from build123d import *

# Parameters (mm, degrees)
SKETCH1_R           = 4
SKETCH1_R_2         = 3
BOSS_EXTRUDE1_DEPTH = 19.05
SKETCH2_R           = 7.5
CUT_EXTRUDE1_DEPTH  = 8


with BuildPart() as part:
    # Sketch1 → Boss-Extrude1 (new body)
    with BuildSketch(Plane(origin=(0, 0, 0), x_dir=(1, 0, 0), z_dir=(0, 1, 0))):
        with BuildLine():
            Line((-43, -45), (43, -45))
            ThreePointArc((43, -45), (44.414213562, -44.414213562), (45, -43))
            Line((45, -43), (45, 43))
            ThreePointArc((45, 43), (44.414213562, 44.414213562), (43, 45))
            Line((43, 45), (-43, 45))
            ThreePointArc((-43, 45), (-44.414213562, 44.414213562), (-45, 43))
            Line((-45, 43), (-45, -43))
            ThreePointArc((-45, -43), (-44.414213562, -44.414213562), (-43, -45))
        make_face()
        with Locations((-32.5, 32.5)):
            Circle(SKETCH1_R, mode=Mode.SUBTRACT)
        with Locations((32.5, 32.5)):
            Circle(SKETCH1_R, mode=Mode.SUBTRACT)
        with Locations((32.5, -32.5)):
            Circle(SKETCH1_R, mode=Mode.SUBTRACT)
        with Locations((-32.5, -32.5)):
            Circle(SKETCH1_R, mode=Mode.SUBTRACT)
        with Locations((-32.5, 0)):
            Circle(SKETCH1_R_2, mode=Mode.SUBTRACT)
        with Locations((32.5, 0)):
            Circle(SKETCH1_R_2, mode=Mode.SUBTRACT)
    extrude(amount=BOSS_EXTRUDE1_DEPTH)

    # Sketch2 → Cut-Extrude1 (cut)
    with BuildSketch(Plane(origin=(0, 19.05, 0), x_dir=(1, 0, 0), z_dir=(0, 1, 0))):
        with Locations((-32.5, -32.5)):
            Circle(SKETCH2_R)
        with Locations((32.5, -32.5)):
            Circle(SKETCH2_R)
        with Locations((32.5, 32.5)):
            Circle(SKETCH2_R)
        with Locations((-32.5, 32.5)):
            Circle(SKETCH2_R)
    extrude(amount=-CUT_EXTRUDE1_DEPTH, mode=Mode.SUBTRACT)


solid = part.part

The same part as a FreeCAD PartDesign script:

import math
import FreeCAD as App
import Part
import Sketcher
from FreeCAD import Vector
Q = App.Units.Quantity

doc = App.newDocument("Part")
body = doc.addObject("PartDesign::Body", "Body")

sketch1 = body.newObject("Sketcher::SketchObject", "Sketch")
sketch1.AttachmentSupport = (doc.getObject("XZ_Plane"), [""])
sketch1.MapMode = "FlatFace"
sketch1.addGeometry([
    Part.LineSegment(Vector(-43, 45, 0), Vector(43, 45, 0)),
    Part.ArcOfCircle(Part.Circle(Vector(43, 43, 0), Vector(0, 0, 1), 2), math.radians(0), math.radians(90)),
    Part.LineSegment(Vector(45, 43, 0), Vector(45, -43, 0)),
    Part.ArcOfCircle(Part.Circle(Vector(43, -43, 0), Vector(0, 0, 1), 2), math.radians(-90), math.radians(0)),
    Part.LineSegment(Vector(43, -45, 0), Vector(-43, -45, 0)),
    Part.ArcOfCircle(Part.Circle(Vector(-43, -43, 0), Vector(0, 0, 1), 2), math.radians(-180), math.radians(-90)),
    Part.LineSegment(Vector(-45, -43, 0), Vector(-45, 43, 0)),
    Part.ArcOfCircle(Part.Circle(Vector(-43, 43, 0), Vector(0, 0, 1), 2), math.radians(90), math.radians(180)),
    Part.Circle(Vector(-32.5, 32.5, 0), Vector(0, 0, 1), 4),
    Part.Circle(Vector(32.5, 32.5, 0), Vector(0, 0, 1), 4),
    Part.Circle(Vector(-32.5, 0, 0), Vector(0, 0, 1), 3),
    Part.Circle(Vector(-32.5, -32.5, 0), Vector(0, 0, 1), 4),
    Part.Circle(Vector(32.5, 0, 0), Vector(0, 0, 1), 3),
    Part.Circle(Vector(32.5, -32.5, 0), Vector(0, 0, 1), 4),
], False)
sketch1.addConstraint([
    Sketcher.Constraint("Tangent", 0, 2, 1, 2),
    Sketcher.Constraint("Tangent", 1, 1, 2, 1),
    Sketcher.Constraint("Tangent", 2, 2, 3, 2),
    Sketcher.Constraint("Tangent", 3, 1, 4, 1),
    Sketcher.Constraint("Tangent", 4, 2, 5, 2),
    Sketcher.Constraint("Tangent", 5, 1, 6, 1),
    Sketcher.Constraint("Tangent", 6, 2, 7, 2),
    Sketcher.Constraint("Tangent", 7, 1, 0, 1),
    Sketcher.Constraint("Horizontal", 0),
    Sketcher.Constraint("Vertical", 2),
    Sketcher.Constraint("Horizontal", 4),
    Sketcher.Constraint("Vertical", 6),
    Sketcher.Constraint("Equal", 1, 3),
    Sketcher.Constraint("Equal", 3, 5),
    Sketcher.Constraint("Equal", 5, 7),
    Sketcher.Constraint("Equal", 8, 9),
    Sketcher.Constraint("Equal", 9, 11),
    Sketcher.Constraint("Equal", 10, 12),
    Sketcher.Constraint("Equal", 11, 13),
    Sketcher.Constraint("Symmetric", 1, 3, 5, 3, -1, 1),
    Sketcher.Constraint("Symmetric", 9, 3, 11, 3, -1, 1),
    Sketcher.Constraint("Symmetric", 10, 3, 12, 3, -1, 1),
    Sketcher.Constraint("Symmetric", 8, 3, 13, 3, -1, 1),
    Sketcher.Constraint("Symmetric", 8, 3, 9, 3, -2),
    Sketcher.Constraint("PointOnObject", 10, 3, -1),
    Sketcher.Constraint("Vertical", 8, 3, 10, 3),
    Sketcher.Constraint("Equal", 4, 2),
    Sketcher.Constraint("Diameter", 8, Q("8 mm")),
    Sketcher.Constraint("Diameter", 10, Q("6 mm")),
    Sketcher.Constraint("Radius", 1, Q("2 mm")),
    Sketcher.Constraint("DistanceX", 0, 1, 0, 2, Q("86 mm")),
    Sketcher.Constraint("DistanceX", 8, 3, 9, 3, Q("65 mm")),
    Sketcher.Constraint("DistanceY", 11, 3, 8, 3, Q("65 mm")),
])
pad1 = body.newObject("PartDesign::Pad", "Pad")
pad1.Profile = sketch1
pad1.Length = 19.05
pad1.Reversed = True

sketch2 = body.newObject("Sketcher::SketchObject", "Sketch001")
sketch2.AttachmentSupport = (doc.getObject("XZ_Plane"), [""])
sketch2.MapMode = "FlatFace"
sketch2.AttachmentOffset = App.Placement(Vector(0, 0, -19.05), App.Rotation())
sketch2.addGeometry([
    Part.Circle(Vector(-32, 32, 0), Vector(0, 0, 1), 8),
    Part.Circle(Vector(32, 32, 0), Vector(0, 0, 1), 8),
    Part.Circle(Vector(32, -32, 0), Vector(0, 0, 1), 8),
    Part.Circle(Vector(-32, -32, 0), Vector(0, 0, 1), 8),
], False)
sketch2.addConstraint([
    Sketcher.Constraint("Equal", 0, 1),
    Sketcher.Constraint("Equal", 1, 2),
    Sketcher.Constraint("Equal", 2, 3),
    Sketcher.Constraint("Symmetric", 0, 3, 2, 3, -1, 1),
    Sketcher.Constraint("Symmetric", 1, 3, 3, 3, -1, 1),
    Sketcher.Constraint("Symmetric", 0, 3, 1, 3, -2),
    Sketcher.Constraint("Diameter", 0, Q("15 mm")),
    Sketcher.Constraint("DistanceX", 0, 3, 1, 3, Q("65 mm")),
    Sketcher.Constraint("DistanceY", 2, 3, 1, 3, Q("65 mm")),
])
pocket1 = body.newObject("PartDesign::Pocket", "Pocket")
pocket1.Profile = sketch2
pocket1.Length = 8
pocket1.Reversed = True

doc.recompute()
